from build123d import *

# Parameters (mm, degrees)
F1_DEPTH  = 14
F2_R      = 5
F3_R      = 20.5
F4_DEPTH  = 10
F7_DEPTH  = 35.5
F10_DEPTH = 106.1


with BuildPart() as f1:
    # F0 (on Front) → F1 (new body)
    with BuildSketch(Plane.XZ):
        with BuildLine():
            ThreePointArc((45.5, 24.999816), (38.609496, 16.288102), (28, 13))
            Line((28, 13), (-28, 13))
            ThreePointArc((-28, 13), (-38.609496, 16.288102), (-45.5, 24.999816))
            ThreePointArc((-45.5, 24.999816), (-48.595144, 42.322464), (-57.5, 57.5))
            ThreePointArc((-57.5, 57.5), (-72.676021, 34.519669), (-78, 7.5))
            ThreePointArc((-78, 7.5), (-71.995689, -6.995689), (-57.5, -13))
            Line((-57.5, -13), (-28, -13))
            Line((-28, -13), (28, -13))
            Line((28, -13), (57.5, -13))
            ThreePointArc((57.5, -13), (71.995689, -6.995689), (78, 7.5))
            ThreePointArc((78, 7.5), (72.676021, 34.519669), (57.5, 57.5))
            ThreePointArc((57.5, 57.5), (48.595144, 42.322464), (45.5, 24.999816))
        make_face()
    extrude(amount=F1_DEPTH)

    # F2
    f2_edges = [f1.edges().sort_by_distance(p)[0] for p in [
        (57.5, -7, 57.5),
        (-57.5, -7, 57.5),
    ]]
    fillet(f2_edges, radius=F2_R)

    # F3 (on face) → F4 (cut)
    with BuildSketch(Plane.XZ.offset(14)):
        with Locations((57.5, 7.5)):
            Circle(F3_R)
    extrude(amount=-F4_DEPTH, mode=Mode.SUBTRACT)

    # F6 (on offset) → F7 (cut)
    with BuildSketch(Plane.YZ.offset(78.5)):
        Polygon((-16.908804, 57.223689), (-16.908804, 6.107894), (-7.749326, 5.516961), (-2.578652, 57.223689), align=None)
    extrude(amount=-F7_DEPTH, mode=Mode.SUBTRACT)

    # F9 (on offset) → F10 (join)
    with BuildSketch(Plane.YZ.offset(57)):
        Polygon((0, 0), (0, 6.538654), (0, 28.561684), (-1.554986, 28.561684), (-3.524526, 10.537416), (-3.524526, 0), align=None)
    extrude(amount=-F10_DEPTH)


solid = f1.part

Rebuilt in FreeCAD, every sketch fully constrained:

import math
import FreeCAD as App
import Part
import Sketcher

V = App.Vector
Q = App.Units.Quantity


def edges_at(feature, points):
    """Names of the edges that pass closest to the given points."""
    edges = feature.Shape.Edges
    near = lambda p: min(range(len(edges)), key=lambda i: edges[i].distToShape(Part.Vertex(*p))[0])
    return sorted({f"Edge{near(p) + 1}" for p in points})

doc = App.newDocument("Part")
params = doc.addObject("Spreadsheet::Sheet", "Params")
for row, (alias, value) in enumerate([
    ("sketch1_radius", "20.5 mm"),
    ("sketch1_width", "56 mm"),
    ("sketch1_width2", "115 mm"),
    ("pad1_length", "14 mm"),
    ("fillet_radius", "5 mm"),
    ("sketch2_diameter", "41 mm"),
    ("pocket1_length", "10 mm"),
    ("pocket2_length", "35.5 mm"),
    ("pad2_length", "106.1 mm"),
], start=1):
    params.set(f"A{row}", alias)
    params.set(f"B{row}", "=" + value)
    params.setAlias(f"B{row}", alias)

body = doc.addObject("PartDesign::Body", "Body")

# Sketch on XZ plane
sketch1 = body.newObject("Sketcher::SketchObject", "Sketch")
sketch1.AttachmentSupport = (doc.getObject("XZ_Plane"), [""])
sketch1.MapMode = "FlatFace"
sketch1.addGeometry([
    Part.ArcOfCircle(Part.Circle(V(28, 32, 0), V(0, 0, 1), 19), math.radians(-90), math.radians(-21)),  # 0
    Part.LineSegment(V(28, 13, 0), V(-28, 13, 0)),  # 1
    Part.ArcOfCircle(Part.Circle(V(-28, 32, 0), V(0, 0, 1), 19), math.radians(-159), math.radians(-90)),  # 2
    Part.ArcOfCircle(Part.Circle(V(-95, 25, 0), V(0, 0, 1), 50), math.radians(0), math.radians(41)),  # 3
    Part.ArcOfCircle(Part.Circle(V(-7, 7, 0), V(0, 0, 1), 71), math.radians(135), math.radians(180)),  # 4
    Part.ArcOfCircle(Part.Circle(V(-57, 8, 0), V(0, 0, 1), 21), math.radians(-180), math.radians(-90)),  # 5
    Part.LineSegment(V(-58, -13, 0), V(58, -13, 0)),  # 6
    Part.ArcOfCircle(Part.Circle(V(57, 8, 0), V(0, 0, 1), 21), math.radians(-90), math.radians(0)),  # 7
    Part.ArcOfCircle(Part.Circle(V(7, 7, 0), V(0, 0, 1), 71), math.radians(0), math.radians(45)),  # 8
    Part.ArcOfCircle(Part.Circle(V(95, 25, 0), V(0, 0, 1), 50), math.radians(139), math.radians(180)),  # 9
], False)
sketch1.addConstraint([
    Sketcher.Constraint("Tangent", 0, 1, 1, 1),
    Sketcher.Constraint("Tangent", 1, 2, 2, 2),
    Sketcher.Constraint("Coincident", 2, 1, 3, 1),
    Sketcher.Constraint("Coincident", 3, 2, 4, 1),
    Sketcher.Constraint("Tangent", 4, 2, 5, 1),
    Sketcher.Constraint("Tangent", 5, 2, 6, 1),
    Sketcher.Constraint("Tangent", 6, 2, 7, 1),
    Sketcher.Constraint("Tangent", 7, 2, 8, 1),
    Sketcher.Constraint("Coincident", 8, 2, 9, 1),
    Sketcher.Constraint("Coincident", 9, 2, 0, 2),
    Sketcher.Constraint("Horizontal", 1),
    Sketcher.Constraint("Horizontal", 6),
    Sketcher.Constraint("Equal", 0, 2),
    Sketcher.Constraint("Equal", 5, 7),
    Sketcher.Constraint("Equal", 4, 8),
    Sketcher.Constraint("Equal", 3, 9),
    Sketcher.Constraint("Symmetric", 4, 3, 8, 3, -2),
    Sketcher.Constraint("Symmetric", 3, 3, 9, 3, -2),
    Sketcher.Constraint("Horizontal", 4, 3, 5, 3),
    Sketcher.Constraint("Horizontal", 2, 1, 9, 2),
    Sketcher.Constraint("Vertical", 5, 3, 3, 2),
    Sketcher.Constraint("Radius", 5, Q("20.5 mm")),
    Sketcher.Constraint("DistanceX", 1, 2, 1, 1, Q("56 mm")),
    Sketcher.Constraint("DistanceX", 6, 1, 6, 2, Q("115 mm")),
    Sketcher.Constraint("DistanceY", -1, 1, 0, 1, Q("13 mm")),
    Sketcher.Constraint("DistanceY", 5, 2, -1, 1, Q("13 mm")),
    Sketcher.Constraint("DistanceX", 5, 3, 2, 1, Q("12 mm")),
    Sketcher.Constraint("DistanceY", 5, 3, 3, 2, Q("50 mm")),
    Sketcher.Constraint("Radius", 0, Q("18.760519 mm")),
    Sketcher.Constraint("Radius", 3, Q("49.999996 mm")),
])
sketch1.setExpression("Constraints[21]", "Params.sketch1_radius")
sketch1.setExpression("Constraints[22]", "Params.sketch1_width")
sketch1.setExpression("Constraints[23]", "Params.sketch1_width2")
pad1 = body.newObject("PartDesign::Pad", "Pad")
pad1.Profile = sketch1
pad1.setExpression("Length", "Params.pad1_length")
doc.recompute()

fillet = body.newObject("PartDesign::Fillet", "Fillet")
fillet.Base = (pad1, edges_at(pad1, [(57.5, -7, 57.5), (-57.5, -7, 57.5)]))
fillet.setExpression("Radius", "Params.fillet_radius")

# Sketch on XZ plane
sketch2 = body.newObject("Sketcher::SketchObject", "Sketch001")
sketch2.AttachmentSupport = (doc.getObject("XZ_Plane"), [""])
sketch2.MapMode = "FlatFace"
sketch2.AttachmentOffset = App.Placement(V(0, 0, 14), App.Rotation())
sketch2.addGeometry(Part.Circle(V(58, 8, 0), V(0, 0, 1), 20), False)
sketch2.addConstraint([
    Sketcher.Constraint("Diameter", 0, Q("41 mm")),
    Sketcher.Constraint("DistanceX", -1, 1, 0, 3, Q("57.5 mm")),
    Sketcher.Constraint("DistanceY", -1, 1, 0, 3, Q("7.5 mm")),
])
sketch2.setExpression("Constraints[0]", "Params.sketch2_diameter")
pocket1 = body.newObject("PartDesign::Pocket", "Pocket")
pocket1.Profile = sketch2
pocket1.setExpression("Length", "Params.pocket1_length")

# Sketch on YZ plane
sketch3 = body.newObject("Sketcher::SketchObject", "Sketch002")
sketch3.AttachmentSupport = (doc.getObject("YZ_Plane"), [""])
sketch3.MapMode = "FlatFace"
sketch3.AttachmentOffset = App.Placement(V(0, 0, 78.5), App.Rotation())
sketch3.addGeometry([
    Part.LineSegment(V(-17, 57, 0), V(-17, 6, 0)),
    Part.LineSegment(V(-17, 6, 0), V(-8, 6, 0)),
    Part.LineSegment(V(-8, 6, 0), V(-3, 57, 0)),
    Part.LineSegment(V(-3, 57, 0), V(-17, 57, 0)),
], False)
sketch3.addConstraint([
    Sketcher.Constraint("Coincident", 0, 2, 1, 1),
    Sketcher.Constraint("Coincident", 1, 2, 2, 1),
    Sketcher.Constraint("Coincident", 2, 2, 3, 1),
    Sketcher.Constraint("Coincident", 3, 2, 0, 1),
    Sketcher.Constraint("Vertical", 0),
    Sketcher.Constraint("Horizontal", 3),
    Sketcher.Constraint("Distance", 1, Q("9.178521 mm")),
    Sketcher.Constraint("Distance", 2, Q("51.964619 mm")),
    Sketcher.Constraint("DistanceX", 3, 2, 3, 1, Q("14.330152 mm")),
    Sketcher.Constraint("DistanceY", 0, 2, 0, 1, Q("51.115795 mm")),
    Sketcher.Constraint("DistanceY", -1, 1, 1, 2, Q("5.516961 mm")),
    Sketcher.Constraint("DistanceX", 2, 2, -1, 1, Q("2.578652 mm")),
])
pocket2 = body.newObject("PartDesign::Pocket", "Pocket001")
pocket2.Profile = sketch3
pocket2.setExpression("Length", "Params.pocket2_length")

# Sketch on YZ plane
sketch4 = body.newObject("Sketcher::SketchObject", "Sketch003")
sketch4.AttachmentSupport = (doc.getObject("YZ_Plane"), [""])
sketch4.MapMode = "FlatFace"
sketch4.AttachmentOffset = App.Placement(V(0, 0, 57), App.Rotation())
sketch4.addGeometry([
    Part.LineSegment(V(0, 0, 0), V(0, 28.6, 0)),  # 0
    Part.LineSegment(V(0, 28.6, 0), V(-1.6, 28.6, 0)),  # 1
    Part.LineSegment(V(-1.6, 28.6, 0), V(-3.5, 10.5, 0)),  # 2
    Part.LineSegment(V(-3.5, 10.5, 0), V(-3.5, 0, 0)),  # 3
    Part.LineSegment(V(-3.5, 0, 0), V(0, 0, 0)),  # 4
], False)
sketch4.addConstraint([
    Sketcher.Constraint("Coincident", 0, 2, 1, 1),
    Sketcher.Constraint("Coincident", 1, 2, 2, 1),
    Sketcher.Constraint("Coincident", 2, 2, 3, 1),
    Sketcher.Constraint("Coincident", 3, 2, 4, 1),
    Sketcher.Constraint("Coincident", 4, 2, 0, 1),
    Sketcher.Constraint("Vertical", 0),
    Sketcher.Constraint("Horizontal", 1),
    Sketcher.Constraint("Vertical", 3),
    Sketcher.Constraint("Horizontal", 4),
    Sketcher.Constraint("Coincident", 4, 2, -1, 1),
    Sketcher.Constraint("DistanceX", 1, 2, 1, 1, Q("1.554986 mm")),
    Sketcher.Constraint("DistanceX", 4, 1, 4, 2, Q("3.524526 mm")),
    Sketcher.Constraint("DistanceY", 0, 1, 0, 2, Q("28.561684 mm")),
    Sketcher.Constraint("DistanceY", 3, 2, 3, 1, Q("10.537416 mm")),
])
pad2 = body.newObject("PartDesign::Pad", "Pad001")
pad2.Profile = sketch4
pad2.setExpression("Length", "Params.pad2_length")
pad2.Reversed = True

doc.recompute()
